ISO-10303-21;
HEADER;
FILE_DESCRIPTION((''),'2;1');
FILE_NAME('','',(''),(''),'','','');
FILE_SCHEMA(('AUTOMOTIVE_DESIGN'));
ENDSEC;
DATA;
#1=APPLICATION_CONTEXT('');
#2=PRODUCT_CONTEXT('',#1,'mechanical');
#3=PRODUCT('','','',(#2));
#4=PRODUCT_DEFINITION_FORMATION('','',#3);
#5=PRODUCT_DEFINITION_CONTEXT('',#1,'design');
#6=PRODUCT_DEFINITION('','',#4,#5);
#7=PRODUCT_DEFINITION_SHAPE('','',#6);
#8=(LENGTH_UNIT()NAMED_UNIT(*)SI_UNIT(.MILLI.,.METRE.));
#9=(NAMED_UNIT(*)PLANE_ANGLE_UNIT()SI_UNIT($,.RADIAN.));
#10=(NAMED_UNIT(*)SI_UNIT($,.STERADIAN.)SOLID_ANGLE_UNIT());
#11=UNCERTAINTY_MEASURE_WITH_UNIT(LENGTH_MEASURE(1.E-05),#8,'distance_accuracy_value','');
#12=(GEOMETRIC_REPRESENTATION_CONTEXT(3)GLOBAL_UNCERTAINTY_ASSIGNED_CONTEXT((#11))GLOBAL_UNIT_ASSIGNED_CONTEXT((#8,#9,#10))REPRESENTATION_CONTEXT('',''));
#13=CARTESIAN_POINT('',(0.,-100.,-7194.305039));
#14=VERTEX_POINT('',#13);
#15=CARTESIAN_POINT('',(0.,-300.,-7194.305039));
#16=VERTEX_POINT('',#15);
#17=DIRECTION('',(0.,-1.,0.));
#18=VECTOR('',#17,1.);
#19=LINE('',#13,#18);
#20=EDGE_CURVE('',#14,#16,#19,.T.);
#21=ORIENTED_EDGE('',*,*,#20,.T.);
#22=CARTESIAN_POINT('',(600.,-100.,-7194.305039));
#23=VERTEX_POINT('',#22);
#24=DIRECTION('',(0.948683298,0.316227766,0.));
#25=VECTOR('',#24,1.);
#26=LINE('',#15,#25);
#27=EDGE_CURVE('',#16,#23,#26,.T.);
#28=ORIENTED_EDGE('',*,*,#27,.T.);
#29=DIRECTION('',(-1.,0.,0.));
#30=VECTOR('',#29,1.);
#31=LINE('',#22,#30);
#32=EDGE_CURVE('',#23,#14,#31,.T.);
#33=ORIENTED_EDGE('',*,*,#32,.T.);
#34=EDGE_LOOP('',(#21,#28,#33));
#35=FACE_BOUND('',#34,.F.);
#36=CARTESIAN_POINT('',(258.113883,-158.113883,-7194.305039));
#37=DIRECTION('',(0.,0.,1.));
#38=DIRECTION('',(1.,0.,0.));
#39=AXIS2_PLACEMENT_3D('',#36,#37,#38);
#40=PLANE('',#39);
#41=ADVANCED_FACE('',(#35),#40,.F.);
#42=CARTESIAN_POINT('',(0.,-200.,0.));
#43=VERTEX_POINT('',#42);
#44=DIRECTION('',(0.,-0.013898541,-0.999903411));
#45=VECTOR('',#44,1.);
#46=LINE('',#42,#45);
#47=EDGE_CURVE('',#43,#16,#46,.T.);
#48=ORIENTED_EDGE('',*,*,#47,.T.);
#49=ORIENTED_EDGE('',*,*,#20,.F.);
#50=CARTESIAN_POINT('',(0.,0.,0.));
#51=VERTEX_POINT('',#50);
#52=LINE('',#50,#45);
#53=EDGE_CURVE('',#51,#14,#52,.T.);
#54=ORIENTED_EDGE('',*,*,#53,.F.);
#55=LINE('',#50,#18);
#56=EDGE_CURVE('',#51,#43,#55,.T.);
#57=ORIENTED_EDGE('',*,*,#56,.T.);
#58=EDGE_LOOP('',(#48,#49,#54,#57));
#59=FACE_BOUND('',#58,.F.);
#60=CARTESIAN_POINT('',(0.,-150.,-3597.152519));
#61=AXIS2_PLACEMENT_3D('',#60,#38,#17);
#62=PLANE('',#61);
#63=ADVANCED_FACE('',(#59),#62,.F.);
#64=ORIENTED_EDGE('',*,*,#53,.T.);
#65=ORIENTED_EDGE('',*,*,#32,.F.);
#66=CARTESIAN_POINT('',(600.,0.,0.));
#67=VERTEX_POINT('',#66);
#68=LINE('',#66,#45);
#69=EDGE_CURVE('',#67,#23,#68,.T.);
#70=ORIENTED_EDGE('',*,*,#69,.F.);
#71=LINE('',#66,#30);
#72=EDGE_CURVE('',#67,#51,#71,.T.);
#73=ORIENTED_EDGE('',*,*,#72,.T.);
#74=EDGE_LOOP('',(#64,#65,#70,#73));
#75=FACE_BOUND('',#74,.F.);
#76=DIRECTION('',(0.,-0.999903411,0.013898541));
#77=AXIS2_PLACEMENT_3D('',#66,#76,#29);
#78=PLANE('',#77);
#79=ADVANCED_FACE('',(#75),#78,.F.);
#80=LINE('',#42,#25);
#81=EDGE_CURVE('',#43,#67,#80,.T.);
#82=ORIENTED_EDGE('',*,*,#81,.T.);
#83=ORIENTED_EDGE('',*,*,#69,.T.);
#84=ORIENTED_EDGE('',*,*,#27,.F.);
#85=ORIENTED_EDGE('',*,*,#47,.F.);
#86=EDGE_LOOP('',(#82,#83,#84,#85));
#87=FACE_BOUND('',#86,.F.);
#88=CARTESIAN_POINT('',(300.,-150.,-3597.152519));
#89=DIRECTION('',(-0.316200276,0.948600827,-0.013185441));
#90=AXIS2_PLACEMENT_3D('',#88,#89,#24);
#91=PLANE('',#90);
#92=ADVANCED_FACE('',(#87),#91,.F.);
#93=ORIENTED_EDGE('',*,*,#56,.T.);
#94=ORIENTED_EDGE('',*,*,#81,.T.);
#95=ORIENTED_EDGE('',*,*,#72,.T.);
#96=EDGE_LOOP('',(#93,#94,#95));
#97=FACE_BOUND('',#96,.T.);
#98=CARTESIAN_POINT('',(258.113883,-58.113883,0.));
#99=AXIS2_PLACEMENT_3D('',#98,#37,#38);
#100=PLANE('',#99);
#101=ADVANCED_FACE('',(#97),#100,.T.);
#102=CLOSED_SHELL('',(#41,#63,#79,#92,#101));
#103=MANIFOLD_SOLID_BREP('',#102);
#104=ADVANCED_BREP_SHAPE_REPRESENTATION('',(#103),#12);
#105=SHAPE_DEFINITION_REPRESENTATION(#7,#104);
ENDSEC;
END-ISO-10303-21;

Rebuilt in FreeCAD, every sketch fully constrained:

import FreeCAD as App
import Part
import Sketcher

doc = App.newDocument("Part")
body = doc.addObject("PartDesign::Body", "Body")

# Sketch on XY plane
sketch1 = doc.addObject("Sketcher::SketchObject", "Sketch")
body.addObject(sketch1)
sketch1.AttachmentSupport = (doc.XY_Plane, [""])
sketch1.MapMode = "FlatFace"
sketch1.addGeometry(Part.LineSegment(App.Vector(600, 0, 0), App.Vector(0, 0, 0)), False)
sketch1.addGeometry(Part.LineSegment(App.Vector(0, 0, 0), App.Vector(0, -200, 0)), False)
sketch1.addGeometry(Part.LineSegment(App.Vector(0, -200, 0), App.Vector(600, 0, 0)), False)
sketch1.addConstraint(Sketcher.Constraint("Coincident", 0, 2, 1, 1))
sketch1.addConstraint(Sketcher.Constraint("Coincident", 1, 2, 2, 1))
sketch1.addConstraint(Sketcher.Constraint("Coincident", 2, 2, 0, 1))
sketch1.addConstraint(Sketcher.Constraint("Horizontal", 0))
sketch1.addConstraint(Sketcher.Constraint("Vertical", 1))
sketch1.addConstraint(Sketcher.Constraint("Coincident", 0, 2, -1, 1))
sketch1.addConstraint(Sketcher.Constraint("DistanceX", 0, 2, 0, 1, 600.0))
sketch1.addConstraint(Sketcher.Constraint("DistanceY", 1, 2, 1, 1, 200.0))

# Sketch on an angled plane
sketch2 = doc.addObject("Sketcher::SketchObject", "Sketch001")
body.addObject(sketch2)
sketch2.Placement = App.Placement(App.Vector(0, 0, 0), App.Rotation(App.Vector(0, 0.013898541, 0.999903411), App.Vector(1.000000001, 0, 0), App.Vector(0, 0.999903411, -0.013898541), "ZXY"))
sketch2.addGeometry(Part.LineSegment(App.Vector(0, 0, 0), App.Vector(-7195.000005, 0, 0)), False)
sketch2.addConstraint(Sketcher.Constraint("Horizontal", 0))
sketch2.addConstraint(Sketcher.Constraint("Coincident", 0, 1, -1, 1))
sketch2.addConstraint(Sketcher.Constraint("DistanceX", 0, 2, 0, 1, 7195.000005))
doc.recompute()

additivepipe = doc.addObject("PartDesign::AdditivePipe", "AdditivePipe")
body.addObject(additivepipe)
additivepipe.Profile = sketch1
additivepipe.Spine = (sketch2, ["Edge1"])

doc.recompute()
